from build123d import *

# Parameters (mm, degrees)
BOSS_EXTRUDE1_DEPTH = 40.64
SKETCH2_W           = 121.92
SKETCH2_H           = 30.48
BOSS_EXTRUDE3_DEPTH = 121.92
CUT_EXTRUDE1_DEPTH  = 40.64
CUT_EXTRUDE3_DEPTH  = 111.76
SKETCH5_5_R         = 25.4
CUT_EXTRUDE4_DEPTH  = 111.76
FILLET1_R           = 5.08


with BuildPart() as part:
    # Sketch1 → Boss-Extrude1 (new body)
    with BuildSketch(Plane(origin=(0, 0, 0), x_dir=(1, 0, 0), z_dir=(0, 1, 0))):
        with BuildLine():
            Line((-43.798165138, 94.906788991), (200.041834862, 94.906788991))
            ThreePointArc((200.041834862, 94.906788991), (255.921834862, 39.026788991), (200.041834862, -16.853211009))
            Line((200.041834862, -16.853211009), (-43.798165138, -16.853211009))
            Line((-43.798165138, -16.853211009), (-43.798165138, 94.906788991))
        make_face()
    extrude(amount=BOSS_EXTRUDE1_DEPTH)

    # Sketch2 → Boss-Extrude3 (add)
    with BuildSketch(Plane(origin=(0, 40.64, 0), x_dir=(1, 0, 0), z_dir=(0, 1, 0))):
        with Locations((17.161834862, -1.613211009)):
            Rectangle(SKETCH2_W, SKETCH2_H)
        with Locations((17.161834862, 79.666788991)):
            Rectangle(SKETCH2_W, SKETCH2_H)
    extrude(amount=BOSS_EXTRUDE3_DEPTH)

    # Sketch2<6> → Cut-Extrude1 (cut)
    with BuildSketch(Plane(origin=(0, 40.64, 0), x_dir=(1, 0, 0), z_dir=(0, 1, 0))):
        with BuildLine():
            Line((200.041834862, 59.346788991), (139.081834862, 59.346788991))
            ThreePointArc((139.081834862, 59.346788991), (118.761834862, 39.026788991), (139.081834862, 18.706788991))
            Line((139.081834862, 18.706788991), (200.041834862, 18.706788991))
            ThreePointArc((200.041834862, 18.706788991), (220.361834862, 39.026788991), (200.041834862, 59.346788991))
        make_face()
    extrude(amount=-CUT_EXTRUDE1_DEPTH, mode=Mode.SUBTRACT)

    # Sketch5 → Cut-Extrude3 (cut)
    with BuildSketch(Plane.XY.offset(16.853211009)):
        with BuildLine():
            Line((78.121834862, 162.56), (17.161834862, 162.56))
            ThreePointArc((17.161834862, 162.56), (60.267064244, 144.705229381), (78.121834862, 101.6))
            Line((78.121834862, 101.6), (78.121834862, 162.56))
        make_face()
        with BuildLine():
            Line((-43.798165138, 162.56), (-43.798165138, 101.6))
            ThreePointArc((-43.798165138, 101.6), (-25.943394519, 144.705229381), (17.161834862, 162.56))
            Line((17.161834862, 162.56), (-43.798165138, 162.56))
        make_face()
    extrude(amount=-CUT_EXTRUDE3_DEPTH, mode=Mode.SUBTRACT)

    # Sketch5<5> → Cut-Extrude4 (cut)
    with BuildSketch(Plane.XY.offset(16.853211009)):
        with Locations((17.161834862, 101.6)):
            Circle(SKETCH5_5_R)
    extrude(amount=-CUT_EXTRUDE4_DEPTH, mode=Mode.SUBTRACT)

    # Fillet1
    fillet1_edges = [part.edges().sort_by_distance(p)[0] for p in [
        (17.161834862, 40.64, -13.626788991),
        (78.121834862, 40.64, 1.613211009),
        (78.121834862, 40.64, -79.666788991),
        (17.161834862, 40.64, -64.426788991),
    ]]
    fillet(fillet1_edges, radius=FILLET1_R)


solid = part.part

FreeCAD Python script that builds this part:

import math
import FreeCAD as App
import Part
import Sketcher
Q = App.Units.Quantity


def edges_at(feature, points):
    """Names of the edges that pass closest to the given points."""
    edges = feature.Shape.Edges
    near = lambda p: min(range(len(edges)), key=lambda i: edges[i].distToShape(Part.Vertex(*p))[0])
    return sorted({f"Edge{near(p) + 1}" for p in points})


def add_polygon(sketch, points):
    """Adds a closed chain of lines whose ends are joined by coincident constraints."""
    first, n = sketch.GeometryCount, len(points)
    for a, b in zip(points, points[1:] + points[:1]):
        sketch.addGeometry(Part.LineSegment(App.Vector(*a, 0), App.Vector(*b, 0)), False)
    for i in range(n):
        sketch.addConstraint(Sketcher.Constraint("Coincident", first + i, 2, first + (i + 1) % n, 1))

doc = App.newDocument("Part")
body = doc.addObject("PartDesign::Body", "Body")

sketch1 = body.newObject("Sketcher::SketchObject", "Sketch")
sketch1.AttachmentSupport = (doc.getObject("XZ_Plane"), [""])
sketch1.MapMode = "FlatFace"
sketch1.addGeometry([
    Part.LineSegment(App.Vector(200, -95, 0), App.Vector(-44, -95, 0)),
    Part.LineSegment(App.Vector(-44, -95, 0), App.Vector(-44, 17, 0)),
    Part.LineSegment(App.Vector(-44, 17, 0), App.Vector(200, 17, 0)),
    Part.ArcOfCircle(Part.Circle(App.Vector(200, -39, 0), App.Vector(0, 0, 1), 56), math.radians(-90), math.radians(90)),
], False)
sketch1.addConstraint([
    Sketcher.Constraint("Coincident", 0, 2, 1, 1),
    Sketcher.Constraint("Coincident", 1, 2, 2, 1),
    Sketcher.Constraint("Tangent", 2, 2, 3, 2),
    Sketcher.Constraint("Tangent", 3, 1, 0, 1),
    Sketcher.Constraint("Horizontal", 0),
    Sketcher.Constraint("Vertical", 1),
    Sketcher.Constraint("Horizontal", 2),
    Sketcher.Constraint("Radius", 3, Q("2.2 in")),
    Sketcher.Constraint("DistanceX", 0, 2, 0, 1, Q("9.6 in")),
    Sketcher.Constraint("DistanceY", 3, 3, -1, 1, 39.026789),
    Sketcher.Constraint("DistanceX", -1, 1, 3, 3, 200.041835),
])
pad1 = body.newObject("PartDesign::Pad", "Pad")
pad1.Profile = sketch1
pad1.Length = Q("1.6 in")
pad1.Reversed = True

sketch2 = body.newObject("Sketcher::SketchObject", "Sketch001")
sketch2.AttachmentSupport = (doc.getObject("XZ_Plane"), [""])
sketch2.MapMode = "FlatFace"
sketch2.AttachmentOffset = App.Placement(App.Vector(0, 0, -1.6 * 25.4), App.Rotation())
add_polygon(sketch2, [(-44, -14), (-44, 17), (78, 17), (78, -14)])
add_polygon(sketch2, [(-44, -95), (-44, -64), (78, -64), (78, -95)])
sketch2.addConstraint([
    Sketcher.Constraint("Vertical", 0),
    Sketcher.Constraint("Horizontal", 1),
    Sketcher.Constraint("Vertical", 2),
    Sketcher.Constraint("Horizontal", 3),
    Sketcher.Constraint("Vertical", 4),
    Sketcher.Constraint("Horizontal", 5),
    Sketcher.Constraint("Vertical", 6),
    Sketcher.Constraint("Horizontal", 7),
    Sketcher.Constraint("Vertical", 3, 2, 4, 2),
    Sketcher.Constraint("Vertical", 2, 2, 5, 2),
    Sketcher.Constraint("Equal", 2, 4),
    Sketcher.Constraint("DistanceX", 1, 1, 1, 2, Q("4.8 in")),
    Sketcher.Constraint("DistanceY", 0, 1, 0, 2, Q("1.2 in")),
    Sketcher.Constraint("DistanceY", 4, 2, 3, 2, Q("2 in")),
    Sketcher.Constraint("DistanceY", -1, 1, 0, 2, 16.853211),
    Sketcher.Constraint("DistanceX", 0, 2, -1, 1, 43.798165),
])
pad2 = body.newObject("PartDesign::Pad", "Pad001")
pad2.Profile = sketch2
pad2.Length = Q("4.8 in")
pad2.Reversed = True

sketch3 = body.newObject("Sketcher::SketchObject", "Sketch002")
sketch3.AttachmentSupport = (doc.getObject("XZ_Plane"), [""])
sketch3.MapMode = "FlatFace"
sketch3.AttachmentOffset = App.Placement(App.Vector(0, 0, -1.6 * 25.4), App.Rotation())
sketch3.addGeometry([
    Part.LineSegment(App.Vector(200, -59, 0), App.Vector(139, -59, 0)),
    Part.ArcOfCircle(Part.Circle(App.Vector(139, -39, 0), App.Vector(0, 0, 1), 20), math.radians(90), math.radians(270)),
    Part.LineSegment(App.Vector(139, -19, 0), App.Vector(200, -19, 0)),
    Part.ArcOfCircle(Part.Circle(App.Vector(200, -39, 0), App.Vector(0, 0, 1), 20), math.radians(-90), math.radians(90)),
], False)
sketch3.addConstraint([
    Sketcher.Constraint("Tangent", 0, 2, 1, 2),
    Sketcher.Constraint("Tangent", 1, 1, 2, 1),
    Sketcher.Constraint("Tangent", 2, 2, 3, 2),
    Sketcher.Constraint("Tangent", 3, 1, 0, 1),
    Sketcher.Constraint("Horizontal", 0),
    Sketcher.Constraint("Horizontal", 2),
    Sketcher.Constraint("Radius", 1, Q("0.8 in")),
    Sketcher.Constraint("DistanceX", 0, 2, 0, 1, Q("2.4 in")),
    Sketcher.Constraint("DistanceY", 1, 3, -1, 1, 39.026789),
    Sketcher.Constraint("DistanceX", -1, 1, 1, 3, 139.081835),
])
pocket1 = body.newObject("PartDesign::Pocket", "Pocket")
pocket1.Profile = sketch3
pocket1.Length = Q("1.6 in")
pocket1.Reversed = True

sketch4 = body.newObject("Sketcher::SketchObject", "Sketch003")
sketch4.AttachmentSupport = (doc.getObject("XY_Plane"), [""])
sketch4.MapMode = "FlatFace"
sketch4.AttachmentOffset = App.Placement(App.Vector(0, 0, 16.853211), App.Rotation())
sketch4.addGeometry([
    Part.LineSegment(App.Vector(78, 163, 0), App.Vector(17, 163, 0)),
    Part.ArcOfCircle(Part.Circle(App.Vector(17, 102, 0), App.Vector(0, 0, 1), 61), math.radians(0), math.radians(90)),
    Part.LineSegment(App.Vector(78, 102, 0), App.Vector(78, 163, 0)),
    Part.LineSegment(App.Vector(-44, 163, 0), App.Vector(-44, 102, 0)),
    Part.ArcOfCircle(Part.Circle(App.Vector(17, 102, 0), App.Vector(0, 0, 1), 61), math.radians(90), math.radians(180)),
    Part.LineSegment(App.Vector(17, 163, 0), App.Vector(-44, 163, 0)),
], False)
sketch4.addConstraint([
    Sketcher.Constraint("Tangent", 0, 2, 1, 2),
    Sketcher.Constraint("Tangent", 1, 1, 2, 1),
    Sketcher.Constraint("Coincident", 2, 2, 0, 1),
    Sketcher.Constraint("Tangent", 3, 2, 4, 2),
    Sketcher.Constraint("Tangent", 4, 1, 5, 1),
    Sketcher.Constraint("Coincident", 5, 2, 3, 1),
    Sketcher.Constraint("Horizontal", 0),
    Sketcher.Constraint("Vertical", 2),
    Sketcher.Constraint("Vertical", 3),
    Sketcher.Constraint("Horizontal", 5),
    Sketcher.Constraint("Coincident", 4, 3, 1, 3),
    Sketcher.Constraint("Equal", 1, 4),
    Sketcher.Constraint("Radius", 1, Q("2.4 in")),
    Sketcher.Constraint("DistanceY", -1, 1, 1, 3, Q("4 in")),
    Sketcher.Constraint("DistanceX", -1, 1, 1, 3, 17.161835),
])
pocket2 = body.newObject("PartDesign::Pocket", "Pocket001")
pocket2.Profile = sketch4
pocket2.Length = Q("4.4 in")

sketch5 = body.newObject("Sketcher::SketchObject", "Sketch004")
sketch5.AttachmentSupport = (doc.getObject("XY_Plane"), [""])
sketch5.MapMode = "FlatFace"
sketch5.AttachmentOffset = App.Placement(App.Vector(0, 0, 16.853211), App.Rotation())
sketch5.addGeometry(Part.Circle(App.Vector(17, 102, 0), App.Vector(0, 0, 1), 25), False)
sketch5.addConstraint([
    Sketcher.Constraint("Diameter", 0, Q("2 in")),
    Sketcher.Constraint("DistanceY", -1, 1, 0, 3, Q("4 in")),
    Sketcher.Constraint("DistanceX", -1, 1, 0, 3, 17.161835),
])
pocket3 = body.newObject("PartDesign::Pocket", "Pocket002")
pocket3.Profile = sketch5
pocket3.Length = Q("4.4 in")
doc.recompute()

fillet = body.newObject("PartDesign::Fillet", "Fillet")
fillet.Base = (pocket3, edges_at(pocket3, [
    (17.162, 40.64, -13.627),
    (78.122, 40.64, 1.613),
    (78.122, 40.64, -79.667),
    (17.162, 40.64, -64.427),
]))
fillet.Radius = Q("0.2 in")

doc.recompute()
